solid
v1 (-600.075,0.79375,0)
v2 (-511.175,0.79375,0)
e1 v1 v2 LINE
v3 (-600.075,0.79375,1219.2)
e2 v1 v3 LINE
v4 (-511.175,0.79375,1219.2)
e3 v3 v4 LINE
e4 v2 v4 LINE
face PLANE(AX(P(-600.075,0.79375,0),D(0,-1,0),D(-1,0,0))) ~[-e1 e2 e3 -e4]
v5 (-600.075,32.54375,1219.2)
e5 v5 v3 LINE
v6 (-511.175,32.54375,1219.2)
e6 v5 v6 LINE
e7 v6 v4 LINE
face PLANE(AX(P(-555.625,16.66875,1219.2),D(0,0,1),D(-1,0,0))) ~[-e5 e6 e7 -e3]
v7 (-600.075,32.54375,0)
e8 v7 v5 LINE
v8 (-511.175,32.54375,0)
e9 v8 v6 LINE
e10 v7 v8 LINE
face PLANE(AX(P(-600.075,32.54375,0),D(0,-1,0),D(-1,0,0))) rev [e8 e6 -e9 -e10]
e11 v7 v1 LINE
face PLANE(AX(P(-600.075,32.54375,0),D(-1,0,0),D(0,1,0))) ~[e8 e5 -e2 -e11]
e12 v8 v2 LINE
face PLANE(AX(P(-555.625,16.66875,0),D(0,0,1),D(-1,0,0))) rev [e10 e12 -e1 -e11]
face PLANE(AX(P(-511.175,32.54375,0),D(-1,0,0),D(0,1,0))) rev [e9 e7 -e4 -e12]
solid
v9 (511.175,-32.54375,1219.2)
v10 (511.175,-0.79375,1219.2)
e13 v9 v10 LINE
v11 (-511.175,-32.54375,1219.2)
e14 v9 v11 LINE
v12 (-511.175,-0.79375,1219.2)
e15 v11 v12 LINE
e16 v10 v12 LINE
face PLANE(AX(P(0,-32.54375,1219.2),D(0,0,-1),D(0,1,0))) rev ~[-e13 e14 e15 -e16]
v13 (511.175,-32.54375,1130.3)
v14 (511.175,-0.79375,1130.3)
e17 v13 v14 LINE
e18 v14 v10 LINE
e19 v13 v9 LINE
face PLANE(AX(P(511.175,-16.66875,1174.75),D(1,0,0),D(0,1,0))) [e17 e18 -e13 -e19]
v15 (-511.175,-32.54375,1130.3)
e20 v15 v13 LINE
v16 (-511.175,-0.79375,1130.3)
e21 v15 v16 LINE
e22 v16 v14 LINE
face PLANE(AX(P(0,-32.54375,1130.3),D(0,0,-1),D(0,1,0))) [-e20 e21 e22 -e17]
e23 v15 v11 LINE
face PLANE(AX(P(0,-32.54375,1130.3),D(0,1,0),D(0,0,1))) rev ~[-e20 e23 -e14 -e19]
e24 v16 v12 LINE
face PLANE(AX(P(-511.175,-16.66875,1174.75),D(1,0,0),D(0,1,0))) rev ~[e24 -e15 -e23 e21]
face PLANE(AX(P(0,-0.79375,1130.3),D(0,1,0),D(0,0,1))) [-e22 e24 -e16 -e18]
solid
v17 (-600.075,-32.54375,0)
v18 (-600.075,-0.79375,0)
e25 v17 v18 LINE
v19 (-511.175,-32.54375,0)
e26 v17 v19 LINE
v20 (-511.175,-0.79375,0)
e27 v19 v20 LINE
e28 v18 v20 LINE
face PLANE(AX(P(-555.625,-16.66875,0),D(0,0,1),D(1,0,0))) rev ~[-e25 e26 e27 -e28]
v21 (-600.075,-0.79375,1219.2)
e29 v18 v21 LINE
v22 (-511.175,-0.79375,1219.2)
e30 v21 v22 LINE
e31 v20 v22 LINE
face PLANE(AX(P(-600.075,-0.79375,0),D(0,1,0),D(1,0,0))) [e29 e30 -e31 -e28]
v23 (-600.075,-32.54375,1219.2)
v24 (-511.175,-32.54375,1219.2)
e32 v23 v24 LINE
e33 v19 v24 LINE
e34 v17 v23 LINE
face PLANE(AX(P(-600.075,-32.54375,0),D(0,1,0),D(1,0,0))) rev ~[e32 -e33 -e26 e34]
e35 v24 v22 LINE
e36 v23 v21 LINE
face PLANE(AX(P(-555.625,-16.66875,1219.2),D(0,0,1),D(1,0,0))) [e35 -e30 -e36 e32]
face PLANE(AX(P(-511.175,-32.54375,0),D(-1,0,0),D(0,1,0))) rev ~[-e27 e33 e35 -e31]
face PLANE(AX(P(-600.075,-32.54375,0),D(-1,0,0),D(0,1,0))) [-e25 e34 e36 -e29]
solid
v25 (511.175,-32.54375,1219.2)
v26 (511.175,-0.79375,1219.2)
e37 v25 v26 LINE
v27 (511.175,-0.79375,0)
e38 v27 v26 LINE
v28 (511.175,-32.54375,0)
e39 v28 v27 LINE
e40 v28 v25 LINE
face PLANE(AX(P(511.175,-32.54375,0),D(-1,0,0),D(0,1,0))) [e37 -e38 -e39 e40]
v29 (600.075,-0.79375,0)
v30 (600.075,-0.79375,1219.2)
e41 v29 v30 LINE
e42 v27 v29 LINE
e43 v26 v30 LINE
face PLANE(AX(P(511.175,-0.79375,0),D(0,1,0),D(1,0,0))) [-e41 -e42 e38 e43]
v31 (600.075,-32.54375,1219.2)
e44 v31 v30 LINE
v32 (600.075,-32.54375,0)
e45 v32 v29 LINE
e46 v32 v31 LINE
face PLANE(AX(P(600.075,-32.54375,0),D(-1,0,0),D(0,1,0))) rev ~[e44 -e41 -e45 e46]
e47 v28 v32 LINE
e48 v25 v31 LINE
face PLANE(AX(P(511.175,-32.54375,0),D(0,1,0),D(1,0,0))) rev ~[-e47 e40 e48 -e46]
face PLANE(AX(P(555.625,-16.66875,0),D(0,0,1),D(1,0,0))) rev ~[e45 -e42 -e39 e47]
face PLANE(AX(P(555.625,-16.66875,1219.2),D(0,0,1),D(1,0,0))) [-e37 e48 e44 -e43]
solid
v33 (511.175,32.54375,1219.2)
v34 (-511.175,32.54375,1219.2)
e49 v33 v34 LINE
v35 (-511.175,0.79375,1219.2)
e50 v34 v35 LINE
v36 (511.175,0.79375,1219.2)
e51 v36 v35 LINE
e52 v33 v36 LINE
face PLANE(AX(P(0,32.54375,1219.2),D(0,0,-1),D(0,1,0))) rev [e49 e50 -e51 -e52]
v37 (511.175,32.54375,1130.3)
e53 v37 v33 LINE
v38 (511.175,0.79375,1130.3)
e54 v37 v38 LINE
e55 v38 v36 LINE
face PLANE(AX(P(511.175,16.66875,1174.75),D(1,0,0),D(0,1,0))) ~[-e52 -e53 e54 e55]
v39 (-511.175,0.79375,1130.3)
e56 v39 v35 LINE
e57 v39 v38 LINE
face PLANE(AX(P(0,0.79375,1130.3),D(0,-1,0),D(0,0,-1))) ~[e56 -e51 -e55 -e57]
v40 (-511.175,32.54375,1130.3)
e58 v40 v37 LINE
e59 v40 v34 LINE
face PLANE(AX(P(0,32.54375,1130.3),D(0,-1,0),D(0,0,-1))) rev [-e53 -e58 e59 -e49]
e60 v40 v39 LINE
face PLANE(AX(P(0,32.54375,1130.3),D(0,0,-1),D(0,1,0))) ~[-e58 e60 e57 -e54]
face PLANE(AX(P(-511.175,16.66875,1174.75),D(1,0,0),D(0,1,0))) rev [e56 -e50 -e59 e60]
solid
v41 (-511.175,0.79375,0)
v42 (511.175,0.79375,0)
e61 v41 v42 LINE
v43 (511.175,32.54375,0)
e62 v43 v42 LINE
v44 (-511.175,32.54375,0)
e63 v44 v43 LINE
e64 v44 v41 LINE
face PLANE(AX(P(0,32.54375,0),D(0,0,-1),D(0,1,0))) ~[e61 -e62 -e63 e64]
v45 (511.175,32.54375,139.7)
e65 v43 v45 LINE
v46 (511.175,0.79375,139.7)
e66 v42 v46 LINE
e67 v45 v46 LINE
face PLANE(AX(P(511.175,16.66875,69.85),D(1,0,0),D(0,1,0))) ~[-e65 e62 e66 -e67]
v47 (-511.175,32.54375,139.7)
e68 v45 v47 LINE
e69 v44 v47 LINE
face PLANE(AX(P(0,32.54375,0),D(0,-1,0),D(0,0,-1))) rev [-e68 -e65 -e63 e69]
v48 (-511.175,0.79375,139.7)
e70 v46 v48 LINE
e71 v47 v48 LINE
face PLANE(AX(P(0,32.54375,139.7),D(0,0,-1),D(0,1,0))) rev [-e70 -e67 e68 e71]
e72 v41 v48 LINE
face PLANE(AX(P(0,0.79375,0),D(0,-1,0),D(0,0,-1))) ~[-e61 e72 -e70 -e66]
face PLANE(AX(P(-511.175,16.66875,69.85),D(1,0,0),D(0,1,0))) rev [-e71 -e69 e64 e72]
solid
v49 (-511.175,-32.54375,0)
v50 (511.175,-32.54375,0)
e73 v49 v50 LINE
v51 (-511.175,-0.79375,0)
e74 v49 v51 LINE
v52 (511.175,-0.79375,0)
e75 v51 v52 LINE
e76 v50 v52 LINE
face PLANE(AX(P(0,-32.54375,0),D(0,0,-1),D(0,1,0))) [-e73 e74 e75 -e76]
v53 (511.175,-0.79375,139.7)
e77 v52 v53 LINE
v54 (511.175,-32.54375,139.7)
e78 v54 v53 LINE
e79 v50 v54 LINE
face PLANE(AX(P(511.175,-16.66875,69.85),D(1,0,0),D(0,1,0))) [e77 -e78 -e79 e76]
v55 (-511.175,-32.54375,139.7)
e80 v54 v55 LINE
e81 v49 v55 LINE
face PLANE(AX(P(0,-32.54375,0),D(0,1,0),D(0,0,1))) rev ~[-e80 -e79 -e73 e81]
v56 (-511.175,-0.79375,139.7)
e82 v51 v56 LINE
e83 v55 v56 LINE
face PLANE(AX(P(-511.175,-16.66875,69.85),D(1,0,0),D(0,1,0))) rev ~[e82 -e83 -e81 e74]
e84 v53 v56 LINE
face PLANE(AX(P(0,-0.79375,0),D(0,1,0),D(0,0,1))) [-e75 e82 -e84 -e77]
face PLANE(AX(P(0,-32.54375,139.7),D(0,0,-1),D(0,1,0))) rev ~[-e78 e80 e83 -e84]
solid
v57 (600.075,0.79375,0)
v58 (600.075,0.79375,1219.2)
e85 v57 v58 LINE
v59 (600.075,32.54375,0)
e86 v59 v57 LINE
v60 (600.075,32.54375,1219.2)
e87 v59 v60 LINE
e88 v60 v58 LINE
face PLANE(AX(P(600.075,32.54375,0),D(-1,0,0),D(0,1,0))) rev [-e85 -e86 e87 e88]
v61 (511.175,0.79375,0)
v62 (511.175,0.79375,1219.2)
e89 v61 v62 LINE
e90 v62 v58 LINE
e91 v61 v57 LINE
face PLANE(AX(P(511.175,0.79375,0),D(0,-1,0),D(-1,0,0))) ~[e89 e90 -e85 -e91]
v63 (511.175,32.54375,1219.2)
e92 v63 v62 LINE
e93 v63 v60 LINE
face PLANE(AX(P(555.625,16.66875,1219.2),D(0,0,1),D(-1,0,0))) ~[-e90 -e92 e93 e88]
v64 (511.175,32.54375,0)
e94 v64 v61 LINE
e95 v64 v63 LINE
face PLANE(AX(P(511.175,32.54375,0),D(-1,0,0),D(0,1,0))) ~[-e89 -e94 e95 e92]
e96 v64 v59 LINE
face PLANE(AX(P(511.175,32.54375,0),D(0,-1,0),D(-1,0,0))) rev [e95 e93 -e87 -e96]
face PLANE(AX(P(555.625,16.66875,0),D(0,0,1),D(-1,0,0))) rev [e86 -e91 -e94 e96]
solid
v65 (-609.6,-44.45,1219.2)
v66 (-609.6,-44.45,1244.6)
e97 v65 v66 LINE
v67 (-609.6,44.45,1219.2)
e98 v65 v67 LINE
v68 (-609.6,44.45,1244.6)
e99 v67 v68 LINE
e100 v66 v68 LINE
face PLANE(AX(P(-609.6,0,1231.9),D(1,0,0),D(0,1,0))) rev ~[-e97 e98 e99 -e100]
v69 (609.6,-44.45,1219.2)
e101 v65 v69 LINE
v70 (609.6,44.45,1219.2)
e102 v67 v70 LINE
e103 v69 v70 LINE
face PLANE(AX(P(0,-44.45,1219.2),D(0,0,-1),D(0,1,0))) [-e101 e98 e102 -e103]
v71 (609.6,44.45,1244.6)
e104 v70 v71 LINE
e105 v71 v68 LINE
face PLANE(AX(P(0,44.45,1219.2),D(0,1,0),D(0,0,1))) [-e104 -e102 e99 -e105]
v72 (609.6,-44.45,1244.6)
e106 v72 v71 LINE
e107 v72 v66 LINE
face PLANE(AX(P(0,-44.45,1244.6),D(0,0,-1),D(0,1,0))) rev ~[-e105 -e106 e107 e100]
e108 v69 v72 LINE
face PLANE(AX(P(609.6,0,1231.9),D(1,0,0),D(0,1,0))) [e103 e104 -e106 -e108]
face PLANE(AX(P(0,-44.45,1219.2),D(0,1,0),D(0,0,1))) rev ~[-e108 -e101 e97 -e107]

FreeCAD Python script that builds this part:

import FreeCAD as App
import Part
import Sketcher

V = App.Vector
Q = App.Units.Quantity


def add_polygon(sketch, points):
    """Adds a closed chain of lines whose ends are joined by coincident constraints."""
    first, n = sketch.GeometryCount, len(points)
    for a, b in zip(points, points[1:] + points[:1]):
        sketch.addGeometry(Part.LineSegment(App.Vector(*a, 0), App.Vector(*b, 0)), False)
    for i in range(n):
        sketch.addConstraint(Sketcher.Constraint("Coincident", first + i, 2, first + (i + 1) % n, 1))

doc = App.newDocument("Part")
params = doc.addObject("Spreadsheet::Sheet", "Params")
for row, (alias, value) in enumerate([
    ("sketch1_width", "3.5 in"),
    ("sketch1_height", "1.25 in"),
    ("pad1_length", "48 in"),
    ("sketch2_height", "5.5 in"),
    ("sketch2_height2", "3.5 in"),
    ("sketch2_width", "1.25 in"),
    ("pad2_length", "20.125 in"),
    ("pad2_length2", "20.125 in"),
    ("sketch3_height", "1 in"),
    ("sketch3_width", "3.5 in"),
    ("pad3_length", "48 in"),
], start=1):
    params.set(f"A{row}", alias)
    params.set(f"B{row}", "=" + value)
    params.setAlias(f"B{row}", alias)

body = doc.addObject("PartDesign::Body", "Body")
body.AllowCompound = True

sketch1 = doc.addObject("Sketcher::SketchObject", "Sketch")
body.addObject(sketch1)
sketch1.AttachmentSupport = (doc.XY_Plane, [""])
sketch1.MapMode = "FlatFace"
add_polygon(sketch1, [(-600, -1), (-600, -33), (-511, -33), (-511, -1)])
add_polygon(sketch1, [(511, -1), (511, -33), (600, -33), (600, -1)])
sketch1.addConstraint([
    Sketcher.Constraint("Vertical", 0),
    Sketcher.Constraint("Horizontal", 1),
    Sketcher.Constraint("Vertical", 2),
    Sketcher.Constraint("Horizontal", 3),
    Sketcher.Constraint("Vertical", 4),
    Sketcher.Constraint("Horizontal", 5),
    Sketcher.Constraint("Vertical", 6),
    Sketcher.Constraint("Horizontal", 7),
    Sketcher.Constraint("Symmetric", 1, 2, 4, 2, -2),
    Sketcher.Constraint("Symmetric", 3, 2, 6, 2, -2),
    Sketcher.Constraint("DistanceX", 1, 1, 1, 2, Q("3.5 in")),
    Sketcher.Constraint("DistanceY", 0, 2, 0, 1, Q("1.25 in")),
    Sketcher.Constraint("DistanceX", 1, 2, 4, 2, Q("40.25 in")),
    Sketcher.Constraint("DistanceY", 0, 2, -1, 1, Q("1.28125 in")),
])
sketch1.setExpression("Constraints[18]", "Params.sketch1_width")
sketch1.setExpression("Constraints[19]", "Params.sketch1_height")
pad1 = doc.addObject("PartDesign::Pad", "Pad")
body.addObject(pad1)
pad1.Profile = sketch1
pad1.setExpression("Length", "Params.pad1_length")
body2 = doc.addObject("PartDesign::Body", "Body001")
body2.AllowCompound = True

sketch2 = doc.addObject("Sketcher::SketchObject", "Sketch001")
body2.addObject(sketch2)
sketch2.AttachmentSupport = (doc.getObject("YZ_Plane001"), [""])
sketch2.MapMode = "FlatFace"
add_polygon(sketch2, [(-33, 140), (-33, 0), (-1, 0), (-1, 140)])
add_polygon(sketch2, [(-33, 1219), (-33, 1130), (-1, 1130), (-1, 1219)])
sketch2.addConstraint([
    Sketcher.Constraint("Vertical", 0),
    Sketcher.Constraint("Horizontal", 1),
    Sketcher.Constraint("Vertical", 2),
    Sketcher.Constraint("Horizontal", 3),
    Sketcher.Constraint("Vertical", 4),
    Sketcher.Constraint("Horizontal", 5),
    Sketcher.Constraint("Vertical", 6),
    Sketcher.Constraint("Horizontal", 7),
    Sketcher.Constraint("PointOnObject", 0, 2, -1),
    Sketcher.Constraint("Vertical", 3, 2, 4, 2),
    Sketcher.Constraint("Vertical", 2, 2, 5, 2),
    Sketcher.Constraint("DistanceY", 0, 2, 0, 1, Q("5.5 in")),
    Sketcher.Constraint("DistanceY", 4, 2, 4, 1, Q("3.5 in")),
    Sketcher.Constraint("DistanceY", -1, 1, 6, 2, Q("48 in")),
    Sketcher.Constraint("DistanceX", 1, 1, 1, 2, Q("1.25 in")),
    Sketcher.Constraint("DistanceX", 0, 2, -1, 1, Q("1.28125 in")),
])
sketch2.setExpression("Constraints[19]", "Params.sketch2_height")
sketch2.setExpression("Constraints[20]", "Params.sketch2_height2")
sketch2.setExpression("Constraints[22]", "Params.sketch2_width")
pad2 = doc.addObject("PartDesign::Pad", "Pad001")
body2.addObject(pad2)
pad2.Profile = sketch2
pad2.Type = "TwoLengths"
pad2.setExpression("Length", "Params.pad2_length")
pad2.setExpression("Length2", "Params.pad2_length2")
body3 = doc.addObject("PartDesign::Body", "Body002")
body3.AllowCompound = True
doc.recompute()

mirroring = doc.addObject("Part::Mirroring", "Mirroring")
mirroring.Source = body
mirroring.Base = V(0, 0, 0)
mirroring.Normal = V(0, -1, 0)
body3.BaseFeature = mirroring
doc.recompute()
body4 = doc.addObject("PartDesign::Body", "Body003")
body4.AllowCompound = True
doc.recompute()

mirroring2 = doc.addObject("Part::Mirroring", "Mirroring001")
mirroring2.Source = body2
mirroring2.Base = V(0, 0, 0)
mirroring2.Normal = V(0, -1, 0)
body4.BaseFeature = mirroring2
doc.recompute()
body5 = doc.addObject("PartDesign::Body", "Body004")

sketch3 = doc.addObject("Sketcher::SketchObject", "Sketch002")
body5.addObject(sketch3)
sketch3.AttachmentSupport = (doc.getObject("YZ_Plane004"), [""])
sketch3.MapMode = "FlatFace"
add_polygon(sketch3, [(-44, 1245), (-44, 1219), (44, 1219), (44, 1245)])
sketch3.addConstraint([
    Sketcher.Constraint("Vertical", 0),
    Sketcher.Constraint("Horizontal", 1),
    Sketcher.Constraint("Vertical", 2),
    Sketcher.Constraint("Horizontal", 3),
    Sketcher.Constraint("DistanceY", 0, 2, 0, 1, Q("1 in")),
    Sketcher.Constraint("DistanceX", 1, 1, 1, 2, Q("3.5 in")),
    Sketcher.Constraint("DistanceY", -1, 1, 0, 2, Q("48 in")),
    Sketcher.Constraint("DistanceX", 0, 2, -1, 1, Q("1.75 in")),
])
sketch3.setExpression("Constraints[8]", "Params.sketch3_height")
sketch3.setExpression("Constraints[9]", "Params.sketch3_width")
pad3 = doc.addObject("PartDesign::Pad", "Pad002")
body5.addObject(pad3)
pad3.Profile = sketch3
pad3.setExpression("Length", "Params.pad3_length")
pad3.Midplane = True
mirroring.Visibility = False
mirroring2.Visibility = False

doc.recompute()
